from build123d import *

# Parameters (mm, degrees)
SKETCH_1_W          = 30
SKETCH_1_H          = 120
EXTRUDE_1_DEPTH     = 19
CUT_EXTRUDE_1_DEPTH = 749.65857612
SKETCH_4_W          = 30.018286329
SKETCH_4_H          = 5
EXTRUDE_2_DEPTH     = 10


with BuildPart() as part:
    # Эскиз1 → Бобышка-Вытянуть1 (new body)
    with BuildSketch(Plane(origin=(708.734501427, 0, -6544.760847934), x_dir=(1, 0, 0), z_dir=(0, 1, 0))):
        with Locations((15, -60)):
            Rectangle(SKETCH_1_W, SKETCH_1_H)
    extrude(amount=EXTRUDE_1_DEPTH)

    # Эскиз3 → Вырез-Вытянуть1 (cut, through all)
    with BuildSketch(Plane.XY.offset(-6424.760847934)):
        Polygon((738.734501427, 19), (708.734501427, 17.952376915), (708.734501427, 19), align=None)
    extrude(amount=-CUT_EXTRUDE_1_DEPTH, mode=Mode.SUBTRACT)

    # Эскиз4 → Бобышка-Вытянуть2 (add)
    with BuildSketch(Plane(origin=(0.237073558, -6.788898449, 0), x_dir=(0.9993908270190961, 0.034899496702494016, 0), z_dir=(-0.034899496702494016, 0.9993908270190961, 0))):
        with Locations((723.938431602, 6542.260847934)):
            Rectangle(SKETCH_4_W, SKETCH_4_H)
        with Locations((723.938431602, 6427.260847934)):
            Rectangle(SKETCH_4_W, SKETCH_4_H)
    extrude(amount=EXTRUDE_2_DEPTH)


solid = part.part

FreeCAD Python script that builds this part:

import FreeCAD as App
import Part
import Sketcher
from FreeCAD import Vector
Q = App.Units.Quantity

doc = App.newDocument("Part")
body = doc.addObject("PartDesign::Body", "Body")

sketch1 = doc.addObject("Sketcher::SketchObject", "Sketch")
body.addObject(sketch1)
sketch1.AttachmentSupport = (doc.XZ_Plane, [""])
sketch1.MapMode = "FlatFace"
sketch1.addGeometry([
    Part.LineSegment(Vector(708.734501, -6544.760848, 0), Vector(708.734501, -6424.760848, 0)),
    Part.LineSegment(Vector(708.734501, -6424.760848, 0), Vector(738.734501, -6424.760848, 0)),
    Part.LineSegment(Vector(738.734501, -6424.760848, 0), Vector(738.734501, -6544.760848, 0)),
    Part.LineSegment(Vector(738.734501, -6544.760848, 0), Vector(708.734501, -6544.760848, 0)),
], False)
sketch1.addConstraint([
    Sketcher.Constraint("Coincident", 0, 2, 1, 1),
    Sketcher.Constraint("Coincident", 1, 2, 2, 1),
    Sketcher.Constraint("Coincident", 2, 2, 3, 1),
    Sketcher.Constraint("Coincident", 3, 2, 0, 1),
    Sketcher.Constraint("Vertical", 0),
    Sketcher.Constraint("Horizontal", 1),
    Sketcher.Constraint("Vertical", 2),
    Sketcher.Constraint("Horizontal", 3),
    Sketcher.Constraint("DistanceX", 1, 1, 1, 2, 30.0),
    Sketcher.Constraint("DistanceY", 0, 1, 0, 2, 120.0),
    Sketcher.Constraint("DistanceX", -1, 1, 0, 2, 708.734501),
    Sketcher.Constraint("DistanceY", 0, 2, -1, 1, 6424.760848),
])
pad1 = doc.addObject("PartDesign::Pad", "Pad")
body.addObject(pad1)
pad1.Profile = sketch1
pad1.Length = 19
pad1.Reversed = True

sketch2 = doc.addObject("Sketcher::SketchObject", "Sketch001")
body.addObject(sketch2)
sketch2.AttachmentSupport = (doc.XY_Plane, [""])
sketch2.MapMode = "FlatFace"
sketch2.AttachmentOffset = App.Placement(Vector(0, 0, -6424.760848), App.Rotation())
sketch2.addGeometry([
    Part.LineSegment(Vector(708.734501, 17.952377, 0), Vector(738.734501, 19, 0)),
    Part.LineSegment(Vector(738.734501, 19, 0), Vector(708.734501, 19, 0)),
    Part.LineSegment(Vector(708.734501, 19, 0), Vector(708.734501, 17.952377, 0)),
], False)
sketch2.addConstraint([
    Sketcher.Constraint("Coincident", 0, 2, 1, 1),
    Sketcher.Constraint("Coincident", 1, 2, 2, 1),
    Sketcher.Constraint("Coincident", 2, 2, 0, 1),
    Sketcher.Constraint("Horizontal", 1),
    Sketcher.Constraint("Vertical", 2),
    Sketcher.Constraint("DistanceX", 1, 2, 1, 1, 30.0),
    Sketcher.Constraint("Angle", 0, Q("2 deg")),
    Sketcher.Constraint("DistanceY", -1, 1, 0, 2, 19.0),
    Sketcher.Constraint("DistanceX", -1, 1, 0, 2, 738.734501),
])
pocket1 = doc.addObject("PartDesign::Pocket", "Pocket")
body.addObject(pocket1)
pocket1.Profile = sketch2
pocket1.Type = "ThroughAll"

sketch3 = doc.addObject("Sketcher::SketchObject", "Sketch002")
body.addObject(sketch3)
sketch3.Placement = App.Placement(Vector(0.237074, -6.788898, 0), App.Rotation(Vector(0.999390827, 0.034899497, 0), Vector(0, 0, -1), Vector(-0.034899497, 0.999390827, 0), "ZXY"))
sketch3.addGeometry([
    Part.LineSegment(Vector(708.929288, 6544.760848, 0), Vector(708.929288, 6539.760848, 0)),
    Part.LineSegment(Vector(708.929288, 6539.760848, 0), Vector(738.947575, 6539.760848, 0)),
    Part.LineSegment(Vector(738.947575, 6539.760848, 0), Vector(738.947575, 6544.760848, 0)),
    Part.LineSegment(Vector(738.947575, 6544.760848, 0), Vector(708.929288, 6544.760848, 0)),
    Part.LineSegment(Vector(708.929288, 6429.760848, 0), Vector(708.929288, 6424.760848, 0)),
    Part.LineSegment(Vector(708.929288, 6424.760848, 0), Vector(738.947575, 6424.760848, 0)),
    Part.LineSegment(Vector(738.947575, 6424.760848, 0), Vector(738.947575, 6429.760848, 0)),
    Part.LineSegment(Vector(738.947575, 6429.760848, 0), Vector(708.929288, 6429.760848, 0)),
], False)
sketch3.addConstraint([
    Sketcher.Constraint("Coincident", 0, 2, 1, 1),
    Sketcher.Constraint("Coincident", 1, 2, 2, 1),
    Sketcher.Constraint("Coincident", 2, 2, 3, 1),
    Sketcher.Constraint("Coincident", 3, 2, 0, 1),
    Sketcher.Constraint("Coincident", 4, 2, 5, 1),
    Sketcher.Constraint("Coincident", 5, 2, 6, 1),
    Sketcher.Constraint("Coincident", 6, 2, 7, 1),
    Sketcher.Constraint("Coincident", 7, 2, 4, 1),
    Sketcher.Constraint("Vertical", 0),
    Sketcher.Constraint("Horizontal", 1),
    Sketcher.Constraint("Vertical", 2),
    Sketcher.Constraint("Horizontal", 3),
    Sketcher.Constraint("Vertical", 4),
    Sketcher.Constraint("Horizontal", 5),
    Sketcher.Constraint("Vertical", 6),
    Sketcher.Constraint("Horizontal", 7),
    Sketcher.Constraint("Vertical", 3, 2, 4, 2),
    Sketcher.Constraint("Vertical", 2, 2, 5, 2),
    Sketcher.Constraint("Equal", 2, 4),
    Sketcher.Constraint("DistanceY", 0, 2, 0, 1, 5.0),
    Sketcher.Constraint("DistanceY", 4, 2, 0, 2, 115.0),
    Sketcher.Constraint("DistanceX", 1, 1, 1, 2, 30.018286),
    Sketcher.Constraint("DistanceX", -1, 1, 0, 2, 708.929288),
    Sketcher.Constraint("DistanceY", -1, 1, 0, 2, 6539.760848),
])
pad2 = doc.addObject("PartDesign::Pad", "Pad001")
body.addObject(pad2)
pad2.Profile = sketch3
pad2.Length = 10

doc.recompute()
